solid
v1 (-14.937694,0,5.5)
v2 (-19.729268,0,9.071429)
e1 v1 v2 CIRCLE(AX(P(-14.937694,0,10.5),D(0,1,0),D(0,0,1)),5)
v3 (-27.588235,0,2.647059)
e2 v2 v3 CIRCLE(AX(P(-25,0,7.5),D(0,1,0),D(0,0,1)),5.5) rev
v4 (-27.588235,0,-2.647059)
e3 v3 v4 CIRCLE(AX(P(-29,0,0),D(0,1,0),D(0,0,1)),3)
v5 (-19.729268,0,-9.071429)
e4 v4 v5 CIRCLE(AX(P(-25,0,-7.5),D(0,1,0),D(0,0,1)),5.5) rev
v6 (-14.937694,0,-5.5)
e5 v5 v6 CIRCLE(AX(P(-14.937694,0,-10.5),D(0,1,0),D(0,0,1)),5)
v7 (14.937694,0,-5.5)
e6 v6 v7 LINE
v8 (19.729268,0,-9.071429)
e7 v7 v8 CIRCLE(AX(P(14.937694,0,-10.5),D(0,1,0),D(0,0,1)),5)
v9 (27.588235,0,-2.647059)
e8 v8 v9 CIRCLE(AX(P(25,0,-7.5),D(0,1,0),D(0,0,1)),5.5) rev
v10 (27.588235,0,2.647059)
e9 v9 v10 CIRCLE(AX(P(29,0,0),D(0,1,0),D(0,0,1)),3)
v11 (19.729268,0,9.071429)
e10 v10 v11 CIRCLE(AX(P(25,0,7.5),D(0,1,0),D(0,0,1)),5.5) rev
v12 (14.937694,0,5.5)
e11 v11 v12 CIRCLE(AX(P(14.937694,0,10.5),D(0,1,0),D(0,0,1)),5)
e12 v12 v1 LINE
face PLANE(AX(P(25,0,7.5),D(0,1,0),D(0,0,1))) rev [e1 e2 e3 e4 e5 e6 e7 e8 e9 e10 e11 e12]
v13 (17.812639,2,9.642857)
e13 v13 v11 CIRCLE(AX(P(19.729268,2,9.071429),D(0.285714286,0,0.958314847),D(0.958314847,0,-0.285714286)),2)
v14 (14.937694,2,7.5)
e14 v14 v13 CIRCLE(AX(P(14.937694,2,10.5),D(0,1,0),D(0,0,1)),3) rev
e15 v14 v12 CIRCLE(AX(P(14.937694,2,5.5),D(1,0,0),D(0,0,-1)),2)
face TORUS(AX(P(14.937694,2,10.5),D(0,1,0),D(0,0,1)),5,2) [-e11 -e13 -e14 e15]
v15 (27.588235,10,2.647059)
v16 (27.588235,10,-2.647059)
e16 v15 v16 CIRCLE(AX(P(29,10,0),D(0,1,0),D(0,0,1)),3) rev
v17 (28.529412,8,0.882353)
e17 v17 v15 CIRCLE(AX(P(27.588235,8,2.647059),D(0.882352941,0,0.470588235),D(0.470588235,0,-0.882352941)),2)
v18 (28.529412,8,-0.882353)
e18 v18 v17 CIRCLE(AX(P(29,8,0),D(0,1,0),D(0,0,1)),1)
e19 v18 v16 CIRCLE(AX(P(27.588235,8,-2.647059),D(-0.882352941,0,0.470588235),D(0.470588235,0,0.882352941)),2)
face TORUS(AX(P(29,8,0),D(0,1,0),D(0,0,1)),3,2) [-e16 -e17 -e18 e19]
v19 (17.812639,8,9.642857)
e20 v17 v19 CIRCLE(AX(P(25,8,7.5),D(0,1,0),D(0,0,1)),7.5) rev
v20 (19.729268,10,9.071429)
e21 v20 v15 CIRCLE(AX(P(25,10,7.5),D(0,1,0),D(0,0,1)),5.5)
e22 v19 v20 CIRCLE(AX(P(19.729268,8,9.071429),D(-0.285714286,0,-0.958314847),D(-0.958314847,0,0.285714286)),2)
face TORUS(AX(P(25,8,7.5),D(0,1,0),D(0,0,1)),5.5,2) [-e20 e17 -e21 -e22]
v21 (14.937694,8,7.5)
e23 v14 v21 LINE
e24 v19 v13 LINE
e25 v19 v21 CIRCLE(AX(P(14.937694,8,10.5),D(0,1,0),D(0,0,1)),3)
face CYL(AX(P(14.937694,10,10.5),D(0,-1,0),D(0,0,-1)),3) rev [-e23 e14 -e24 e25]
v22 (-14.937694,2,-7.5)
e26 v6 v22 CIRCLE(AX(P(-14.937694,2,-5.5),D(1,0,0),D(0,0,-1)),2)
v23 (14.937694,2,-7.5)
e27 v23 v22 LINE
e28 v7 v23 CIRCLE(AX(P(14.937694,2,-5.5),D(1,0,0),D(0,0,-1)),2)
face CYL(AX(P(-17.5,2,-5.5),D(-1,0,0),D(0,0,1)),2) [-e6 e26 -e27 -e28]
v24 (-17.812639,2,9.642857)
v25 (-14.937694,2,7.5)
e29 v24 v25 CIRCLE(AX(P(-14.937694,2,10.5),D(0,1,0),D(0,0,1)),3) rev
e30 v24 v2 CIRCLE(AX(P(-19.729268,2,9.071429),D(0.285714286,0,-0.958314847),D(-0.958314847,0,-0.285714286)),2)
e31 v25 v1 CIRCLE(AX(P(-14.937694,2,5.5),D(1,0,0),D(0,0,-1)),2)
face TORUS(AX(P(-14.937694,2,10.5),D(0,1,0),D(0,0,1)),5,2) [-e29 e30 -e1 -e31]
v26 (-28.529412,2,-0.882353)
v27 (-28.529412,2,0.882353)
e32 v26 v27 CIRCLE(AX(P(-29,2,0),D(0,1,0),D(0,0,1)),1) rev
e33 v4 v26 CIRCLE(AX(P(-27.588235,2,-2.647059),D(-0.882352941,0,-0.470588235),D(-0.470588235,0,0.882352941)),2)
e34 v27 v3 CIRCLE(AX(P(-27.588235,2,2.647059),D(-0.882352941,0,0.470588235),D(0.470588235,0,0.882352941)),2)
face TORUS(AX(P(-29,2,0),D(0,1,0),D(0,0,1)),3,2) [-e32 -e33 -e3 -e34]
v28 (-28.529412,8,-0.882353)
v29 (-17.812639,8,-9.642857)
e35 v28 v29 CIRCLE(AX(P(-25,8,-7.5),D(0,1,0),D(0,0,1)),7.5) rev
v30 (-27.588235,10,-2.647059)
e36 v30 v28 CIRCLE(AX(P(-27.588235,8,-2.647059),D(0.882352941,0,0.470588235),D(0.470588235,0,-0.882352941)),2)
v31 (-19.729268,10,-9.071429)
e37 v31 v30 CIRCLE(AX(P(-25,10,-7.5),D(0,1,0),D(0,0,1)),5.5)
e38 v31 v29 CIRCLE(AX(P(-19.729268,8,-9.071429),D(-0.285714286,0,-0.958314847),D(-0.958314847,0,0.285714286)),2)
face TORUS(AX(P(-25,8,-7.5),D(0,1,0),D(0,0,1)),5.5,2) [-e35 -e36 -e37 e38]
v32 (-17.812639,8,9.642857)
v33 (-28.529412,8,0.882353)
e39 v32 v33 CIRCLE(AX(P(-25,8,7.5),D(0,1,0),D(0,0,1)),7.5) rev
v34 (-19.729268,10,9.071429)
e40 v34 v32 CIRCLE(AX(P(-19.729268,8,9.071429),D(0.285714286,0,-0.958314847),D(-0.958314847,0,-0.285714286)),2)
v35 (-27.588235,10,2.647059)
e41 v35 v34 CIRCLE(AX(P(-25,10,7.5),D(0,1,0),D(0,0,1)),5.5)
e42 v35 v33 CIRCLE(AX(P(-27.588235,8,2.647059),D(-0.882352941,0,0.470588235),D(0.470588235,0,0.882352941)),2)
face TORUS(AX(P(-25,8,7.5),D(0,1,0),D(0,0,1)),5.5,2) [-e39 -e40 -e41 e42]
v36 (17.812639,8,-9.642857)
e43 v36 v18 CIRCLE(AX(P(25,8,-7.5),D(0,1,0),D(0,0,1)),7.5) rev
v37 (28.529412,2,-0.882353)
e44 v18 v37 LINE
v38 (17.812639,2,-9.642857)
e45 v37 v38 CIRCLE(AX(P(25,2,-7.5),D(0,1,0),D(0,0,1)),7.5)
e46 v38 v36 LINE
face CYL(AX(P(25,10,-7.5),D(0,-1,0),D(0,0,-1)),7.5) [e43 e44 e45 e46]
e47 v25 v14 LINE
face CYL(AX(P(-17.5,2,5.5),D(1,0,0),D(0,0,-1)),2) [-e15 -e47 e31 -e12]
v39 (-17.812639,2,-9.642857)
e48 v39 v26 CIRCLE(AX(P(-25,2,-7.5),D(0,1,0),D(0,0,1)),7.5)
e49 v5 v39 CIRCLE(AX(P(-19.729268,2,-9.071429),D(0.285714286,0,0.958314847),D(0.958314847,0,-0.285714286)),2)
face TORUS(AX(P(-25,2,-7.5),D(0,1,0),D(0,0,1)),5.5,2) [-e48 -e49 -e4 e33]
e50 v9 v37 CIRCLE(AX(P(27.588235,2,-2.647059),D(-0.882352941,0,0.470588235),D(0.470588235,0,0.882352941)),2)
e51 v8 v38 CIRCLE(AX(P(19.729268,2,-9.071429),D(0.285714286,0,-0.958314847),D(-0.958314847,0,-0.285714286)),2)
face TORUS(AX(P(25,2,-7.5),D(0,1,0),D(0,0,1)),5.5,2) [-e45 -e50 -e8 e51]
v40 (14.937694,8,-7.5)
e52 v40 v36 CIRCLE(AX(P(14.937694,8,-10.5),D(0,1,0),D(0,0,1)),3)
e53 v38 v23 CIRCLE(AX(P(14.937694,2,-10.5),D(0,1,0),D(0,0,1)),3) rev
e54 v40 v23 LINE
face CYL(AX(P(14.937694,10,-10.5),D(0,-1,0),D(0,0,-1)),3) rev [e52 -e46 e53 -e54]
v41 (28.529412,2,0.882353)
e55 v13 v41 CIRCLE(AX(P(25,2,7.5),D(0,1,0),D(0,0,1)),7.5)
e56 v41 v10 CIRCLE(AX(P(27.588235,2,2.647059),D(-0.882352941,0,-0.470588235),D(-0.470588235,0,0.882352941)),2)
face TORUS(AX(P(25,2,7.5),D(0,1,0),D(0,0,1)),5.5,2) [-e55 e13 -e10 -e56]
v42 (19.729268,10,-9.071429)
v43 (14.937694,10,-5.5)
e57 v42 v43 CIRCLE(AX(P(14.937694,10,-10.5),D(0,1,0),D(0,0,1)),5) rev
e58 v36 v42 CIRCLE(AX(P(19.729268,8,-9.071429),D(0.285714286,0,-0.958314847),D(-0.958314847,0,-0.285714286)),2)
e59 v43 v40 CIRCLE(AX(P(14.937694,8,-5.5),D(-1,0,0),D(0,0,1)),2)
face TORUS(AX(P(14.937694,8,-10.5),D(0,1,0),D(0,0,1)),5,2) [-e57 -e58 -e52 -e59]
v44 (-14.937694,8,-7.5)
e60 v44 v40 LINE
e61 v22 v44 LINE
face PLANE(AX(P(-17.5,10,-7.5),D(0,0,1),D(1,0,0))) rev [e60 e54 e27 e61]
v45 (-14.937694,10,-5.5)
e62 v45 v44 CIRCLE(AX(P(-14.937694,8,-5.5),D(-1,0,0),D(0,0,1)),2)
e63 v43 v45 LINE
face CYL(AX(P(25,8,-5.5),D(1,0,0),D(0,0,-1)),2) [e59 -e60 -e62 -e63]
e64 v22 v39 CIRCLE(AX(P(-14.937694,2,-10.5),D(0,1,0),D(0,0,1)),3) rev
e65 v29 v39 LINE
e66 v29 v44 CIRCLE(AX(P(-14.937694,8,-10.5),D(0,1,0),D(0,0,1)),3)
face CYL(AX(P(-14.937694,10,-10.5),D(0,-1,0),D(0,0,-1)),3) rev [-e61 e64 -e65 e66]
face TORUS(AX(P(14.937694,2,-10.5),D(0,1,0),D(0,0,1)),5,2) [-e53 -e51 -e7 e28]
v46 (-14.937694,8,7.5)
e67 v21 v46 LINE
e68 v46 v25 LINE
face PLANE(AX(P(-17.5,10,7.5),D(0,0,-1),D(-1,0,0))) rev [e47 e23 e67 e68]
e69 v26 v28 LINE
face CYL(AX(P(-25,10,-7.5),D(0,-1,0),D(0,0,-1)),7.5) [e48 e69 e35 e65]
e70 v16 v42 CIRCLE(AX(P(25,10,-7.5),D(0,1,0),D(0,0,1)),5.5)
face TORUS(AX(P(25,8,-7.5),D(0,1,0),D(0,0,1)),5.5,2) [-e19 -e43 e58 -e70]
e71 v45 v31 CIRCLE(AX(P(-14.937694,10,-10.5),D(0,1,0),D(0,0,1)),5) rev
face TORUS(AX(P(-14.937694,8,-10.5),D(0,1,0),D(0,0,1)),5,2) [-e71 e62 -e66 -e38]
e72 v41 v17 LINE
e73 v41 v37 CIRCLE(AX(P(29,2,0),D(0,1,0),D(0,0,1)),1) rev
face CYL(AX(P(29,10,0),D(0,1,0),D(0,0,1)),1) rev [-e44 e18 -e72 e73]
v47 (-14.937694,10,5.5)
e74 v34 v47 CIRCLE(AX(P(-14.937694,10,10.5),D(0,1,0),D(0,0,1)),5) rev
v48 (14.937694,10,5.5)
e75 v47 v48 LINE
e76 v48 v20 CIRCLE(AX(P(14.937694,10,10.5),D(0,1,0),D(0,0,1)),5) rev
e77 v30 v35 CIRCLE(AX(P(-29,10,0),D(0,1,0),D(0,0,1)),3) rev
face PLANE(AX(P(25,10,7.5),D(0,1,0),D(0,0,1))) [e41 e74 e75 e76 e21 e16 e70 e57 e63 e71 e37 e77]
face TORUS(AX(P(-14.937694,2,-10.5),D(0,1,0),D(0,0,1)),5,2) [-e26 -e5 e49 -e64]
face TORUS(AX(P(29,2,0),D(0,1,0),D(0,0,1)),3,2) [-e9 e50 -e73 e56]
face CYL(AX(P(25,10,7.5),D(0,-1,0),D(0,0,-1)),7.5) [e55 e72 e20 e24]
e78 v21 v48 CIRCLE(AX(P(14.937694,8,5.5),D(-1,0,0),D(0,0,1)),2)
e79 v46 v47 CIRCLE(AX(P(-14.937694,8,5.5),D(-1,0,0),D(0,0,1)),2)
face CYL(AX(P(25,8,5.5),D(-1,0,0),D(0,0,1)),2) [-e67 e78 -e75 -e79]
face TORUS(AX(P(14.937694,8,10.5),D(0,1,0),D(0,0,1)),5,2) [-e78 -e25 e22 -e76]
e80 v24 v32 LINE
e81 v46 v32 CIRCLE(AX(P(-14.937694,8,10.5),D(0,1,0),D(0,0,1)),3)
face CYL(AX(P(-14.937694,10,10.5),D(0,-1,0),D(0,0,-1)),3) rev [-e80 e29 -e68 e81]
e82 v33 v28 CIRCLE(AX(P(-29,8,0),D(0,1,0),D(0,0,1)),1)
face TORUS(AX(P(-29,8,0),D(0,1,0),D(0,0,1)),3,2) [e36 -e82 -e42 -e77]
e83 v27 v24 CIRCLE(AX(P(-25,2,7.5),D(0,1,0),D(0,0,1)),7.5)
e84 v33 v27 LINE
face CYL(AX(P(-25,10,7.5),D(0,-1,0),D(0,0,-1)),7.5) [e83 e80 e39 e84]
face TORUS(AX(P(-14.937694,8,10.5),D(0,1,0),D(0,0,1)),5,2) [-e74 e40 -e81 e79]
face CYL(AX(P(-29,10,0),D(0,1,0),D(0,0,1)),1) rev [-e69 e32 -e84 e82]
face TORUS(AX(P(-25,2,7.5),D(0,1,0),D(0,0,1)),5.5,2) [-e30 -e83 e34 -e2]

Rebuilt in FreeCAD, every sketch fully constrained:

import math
import FreeCAD as App
import Part
import Sketcher
from FreeCAD import Vector
Q = App.Units.Quantity


def edges_at(feature, points):
    """Names of the edges that pass closest to the given points."""
    edges = feature.Shape.Edges
    near = lambda p: min(range(len(edges)), key=lambda i: edges[i].distToShape(Part.Vertex(*p))[0])
    return sorted({f"Edge{near(p) + 1}" for p in points})

doc = App.newDocument("Part")
body = doc.addObject("PartDesign::Body", "Body")

sketch1 = body.newObject("Sketcher::SketchObject", "Sketch")
sketch1.AttachmentSupport = (doc.getObject("XZ_Plane"), [""])
sketch1.MapMode = "FlatFace"
sketch1.addGeometry(Part.LineSegment(Vector(-17.5, 7.5, 0), Vector(17.5, 7.5, 0)), False)
sketch1.addGeometry(Part.ArcOfCircle(Part.Circle(Vector(25, 7.5, 0), Vector(0, 0, 1), 7.5), math.radians(-90), math.radians(180)), False)
sketch1.addGeometry(Part.ArcOfCircle(Part.Circle(Vector(25, -7.5, 0), Vector(0, 0, 1), 7.5), math.radians(180), math.radians(450)), False)
sketch1.addGeometry(Part.LineSegment(Vector(17.5, -7.5, 0), Vector(-17.5, -7.5, 0)), False)
sketch1.addGeometry(Part.ArcOfCircle(Part.Circle(Vector(-25, -7.5, 0), Vector(0, 0, 1), 7.5), math.radians(90), math.radians(360)), False)
sketch1.addGeometry(Part.ArcOfCircle(Part.Circle(Vector(-25, 7.5, 0), Vector(0, 0, 1), 7.5), math.radians(0), math.radians(270)), False)
sketch1.addConstraint(Sketcher.Constraint("Coincident", 0, 2, 1, 2))
sketch1.addConstraint(Sketcher.Constraint("Tangent", 1, 1, 2, 2))
sketch1.addConstraint(Sketcher.Constraint("Coincident", 2, 1, 3, 1))
sketch1.addConstraint(Sketcher.Constraint("Coincident", 3, 2, 4, 2))
sketch1.addConstraint(Sketcher.Constraint("Tangent", 4, 1, 5, 2))
sketch1.addConstraint(Sketcher.Constraint("Coincident", 5, 1, 0, 1))
sketch1.addConstraint(Sketcher.Constraint("Horizontal", 0))
sketch1.addConstraint(Sketcher.Constraint("Horizontal", 3))
sketch1.addConstraint(Sketcher.Constraint("Equal", 1, 2))
sketch1.addConstraint(Sketcher.Constraint("Equal", 2, 4))
sketch1.addConstraint(Sketcher.Constraint("Equal", 4, 5))
sketch1.addConstraint(Sketcher.Constraint("Symmetric", 1, 3, 4, 3, -1, 1))
sketch1.addConstraint(Sketcher.Constraint("Symmetric", 2, 1, 5, 1, -1, 1))
sketch1.addConstraint(Sketcher.Constraint("Symmetric", 2, 3, 4, 3, -2))
sketch1.addConstraint(Sketcher.Constraint("Horizontal", 5, 3, 0, 2))
sketch1.addConstraint(Sketcher.Constraint("Radius", 1, Q("7.5 mm")))
sketch1.addConstraint(Sketcher.Constraint("DistanceX", 0, 1, 0, 2, Q("35 mm")))
pad1 = body.newObject("PartDesign::Pad", "Pad")
pad1.Profile = sketch1
pad1.Length = 10
pad1.Reversed = True
doc.recompute()

fillet = body.newObject("PartDesign::Fillet", "Fillet")
fillet.Base = (pad1, edges_at(pad1, [
    (17.5, 5, 7.5),
    (-17.5, 5, 7.5),
    (-17.5, 5, -7.5),
    (17.5, 5, -7.5),
]))
fillet.Radius = 3
doc.recompute()

fillet2 = body.newObject("PartDesign::Fillet", "Fillet001")
fillet2.Base = (fillet, edges_at(fillet, [(-25, 5, 0), (25, 5, 0)]))
fillet2.Radius = 1
doc.recompute()

fillet3 = body.newObject("PartDesign::Fillet", "Fillet002")
fillet3.Base = (fillet2, edges_at(fillet2, [
    (-29.747, 0, -13.307),
    (-29.747, 10, -13.307),
    (0, 0, -7.5),
    (0, 10, -7.5),
    (29.747, 0, 13.307),
    (29.747, 10, 13.307),
    (0, 0, 7.5),
    (0, 10, 7.5),
    (-16.731, 0, -8.095),
    (-16.731, 10, -8.095),
    (16.731, 0, -8.095),
    (16.731, 10, -8.095),
    (16.731, 0, 8.095),
    (16.731, 10, 8.095),
    (-16.731, 0, 8.095),
    (-16.731, 10, 8.095),
    (-29.747, 0, 13.307),
    (-29.747, 10, 13.307),
    (29.747, 0, -13.307),
    (29.747, 10, -13.307),
    (-28, 0, 0),
    (-28, 10, 0),
    (28, 0, 0),
    (28, 10, 0),
]))
fillet3.Radius = 2

doc.recompute()
